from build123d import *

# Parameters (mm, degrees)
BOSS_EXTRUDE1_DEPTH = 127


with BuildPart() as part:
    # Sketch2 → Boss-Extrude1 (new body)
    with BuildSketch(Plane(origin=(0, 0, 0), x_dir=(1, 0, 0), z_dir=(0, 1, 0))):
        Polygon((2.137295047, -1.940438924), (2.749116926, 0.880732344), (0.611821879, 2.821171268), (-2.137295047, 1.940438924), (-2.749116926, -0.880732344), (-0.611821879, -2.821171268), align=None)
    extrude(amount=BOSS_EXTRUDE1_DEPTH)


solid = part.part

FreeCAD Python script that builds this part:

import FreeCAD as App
import Part
import Sketcher
Q = App.Units.Quantity


def add_polygon(sketch, points):
    """Adds a closed chain of lines whose ends are joined by coincident constraints."""
    first, n = sketch.GeometryCount, len(points)
    for a, b in zip(points, points[1:] + points[:1]):
        sketch.addGeometry(Part.LineSegment(App.Vector(*a, 0), App.Vector(*b, 0)), False)
    for i in range(n):
        sketch.addConstraint(Sketcher.Constraint("Coincident", first + i, 2, first + (i + 1) % n, 1))

doc = App.newDocument("Part")
body = doc.addObject("PartDesign::Body", "Body")

sketch1 = body.newObject("Sketcher::SketchObject", "Sketch")
sketch1.AttachmentSupport = (doc.getObject("XZ_Plane"), [""])
sketch1.MapMode = "FlatFace"
add_polygon(sketch1, [(2.137295, 1.940439), (2.749117, -0.880732), (0.611822, -2.821171), (-2.137295, -1.940439), (-2.749117, 0.880732), (-0.611822, 2.821171)])
sketch1.addConstraint(Sketcher.Constraint("Symmetric", 0, 2, 3, 2, -1, 1))
sketch1.addConstraint(Sketcher.Constraint("Symmetric", 1, 2, 4, 2, -1, 1))
sketch1.addConstraint(Sketcher.Constraint("Symmetric", 2, 2, 5, 2, -1, 1))
sketch1.addConstraint(Sketcher.Constraint("Equal", 0, 1))
sketch1.addConstraint(Sketcher.Constraint("Equal", 1, 2))
sketch1.addConstraint(Sketcher.Constraint("Distance", 0, Q("2.886751 mm")))
sketch1.addConstraint(Sketcher.Constraint("DistanceX", -1, 1, 1, 2, Q("0.611822 mm")))
sketch1.addConstraint(Sketcher.Constraint("DistanceY", 1, 2, -1, 1, Q("2.821171 mm")))
sketch1.addConstraint(Sketcher.Constraint("DistanceY", 2, 2, -1, 1, Q("1.940439 mm")))
pad1 = body.newObject("PartDesign::Pad", "Pad")
pad1.Profile = sketch1
pad1.Length = Q("5 in")
pad1.Reversed = True

doc.recompute()
